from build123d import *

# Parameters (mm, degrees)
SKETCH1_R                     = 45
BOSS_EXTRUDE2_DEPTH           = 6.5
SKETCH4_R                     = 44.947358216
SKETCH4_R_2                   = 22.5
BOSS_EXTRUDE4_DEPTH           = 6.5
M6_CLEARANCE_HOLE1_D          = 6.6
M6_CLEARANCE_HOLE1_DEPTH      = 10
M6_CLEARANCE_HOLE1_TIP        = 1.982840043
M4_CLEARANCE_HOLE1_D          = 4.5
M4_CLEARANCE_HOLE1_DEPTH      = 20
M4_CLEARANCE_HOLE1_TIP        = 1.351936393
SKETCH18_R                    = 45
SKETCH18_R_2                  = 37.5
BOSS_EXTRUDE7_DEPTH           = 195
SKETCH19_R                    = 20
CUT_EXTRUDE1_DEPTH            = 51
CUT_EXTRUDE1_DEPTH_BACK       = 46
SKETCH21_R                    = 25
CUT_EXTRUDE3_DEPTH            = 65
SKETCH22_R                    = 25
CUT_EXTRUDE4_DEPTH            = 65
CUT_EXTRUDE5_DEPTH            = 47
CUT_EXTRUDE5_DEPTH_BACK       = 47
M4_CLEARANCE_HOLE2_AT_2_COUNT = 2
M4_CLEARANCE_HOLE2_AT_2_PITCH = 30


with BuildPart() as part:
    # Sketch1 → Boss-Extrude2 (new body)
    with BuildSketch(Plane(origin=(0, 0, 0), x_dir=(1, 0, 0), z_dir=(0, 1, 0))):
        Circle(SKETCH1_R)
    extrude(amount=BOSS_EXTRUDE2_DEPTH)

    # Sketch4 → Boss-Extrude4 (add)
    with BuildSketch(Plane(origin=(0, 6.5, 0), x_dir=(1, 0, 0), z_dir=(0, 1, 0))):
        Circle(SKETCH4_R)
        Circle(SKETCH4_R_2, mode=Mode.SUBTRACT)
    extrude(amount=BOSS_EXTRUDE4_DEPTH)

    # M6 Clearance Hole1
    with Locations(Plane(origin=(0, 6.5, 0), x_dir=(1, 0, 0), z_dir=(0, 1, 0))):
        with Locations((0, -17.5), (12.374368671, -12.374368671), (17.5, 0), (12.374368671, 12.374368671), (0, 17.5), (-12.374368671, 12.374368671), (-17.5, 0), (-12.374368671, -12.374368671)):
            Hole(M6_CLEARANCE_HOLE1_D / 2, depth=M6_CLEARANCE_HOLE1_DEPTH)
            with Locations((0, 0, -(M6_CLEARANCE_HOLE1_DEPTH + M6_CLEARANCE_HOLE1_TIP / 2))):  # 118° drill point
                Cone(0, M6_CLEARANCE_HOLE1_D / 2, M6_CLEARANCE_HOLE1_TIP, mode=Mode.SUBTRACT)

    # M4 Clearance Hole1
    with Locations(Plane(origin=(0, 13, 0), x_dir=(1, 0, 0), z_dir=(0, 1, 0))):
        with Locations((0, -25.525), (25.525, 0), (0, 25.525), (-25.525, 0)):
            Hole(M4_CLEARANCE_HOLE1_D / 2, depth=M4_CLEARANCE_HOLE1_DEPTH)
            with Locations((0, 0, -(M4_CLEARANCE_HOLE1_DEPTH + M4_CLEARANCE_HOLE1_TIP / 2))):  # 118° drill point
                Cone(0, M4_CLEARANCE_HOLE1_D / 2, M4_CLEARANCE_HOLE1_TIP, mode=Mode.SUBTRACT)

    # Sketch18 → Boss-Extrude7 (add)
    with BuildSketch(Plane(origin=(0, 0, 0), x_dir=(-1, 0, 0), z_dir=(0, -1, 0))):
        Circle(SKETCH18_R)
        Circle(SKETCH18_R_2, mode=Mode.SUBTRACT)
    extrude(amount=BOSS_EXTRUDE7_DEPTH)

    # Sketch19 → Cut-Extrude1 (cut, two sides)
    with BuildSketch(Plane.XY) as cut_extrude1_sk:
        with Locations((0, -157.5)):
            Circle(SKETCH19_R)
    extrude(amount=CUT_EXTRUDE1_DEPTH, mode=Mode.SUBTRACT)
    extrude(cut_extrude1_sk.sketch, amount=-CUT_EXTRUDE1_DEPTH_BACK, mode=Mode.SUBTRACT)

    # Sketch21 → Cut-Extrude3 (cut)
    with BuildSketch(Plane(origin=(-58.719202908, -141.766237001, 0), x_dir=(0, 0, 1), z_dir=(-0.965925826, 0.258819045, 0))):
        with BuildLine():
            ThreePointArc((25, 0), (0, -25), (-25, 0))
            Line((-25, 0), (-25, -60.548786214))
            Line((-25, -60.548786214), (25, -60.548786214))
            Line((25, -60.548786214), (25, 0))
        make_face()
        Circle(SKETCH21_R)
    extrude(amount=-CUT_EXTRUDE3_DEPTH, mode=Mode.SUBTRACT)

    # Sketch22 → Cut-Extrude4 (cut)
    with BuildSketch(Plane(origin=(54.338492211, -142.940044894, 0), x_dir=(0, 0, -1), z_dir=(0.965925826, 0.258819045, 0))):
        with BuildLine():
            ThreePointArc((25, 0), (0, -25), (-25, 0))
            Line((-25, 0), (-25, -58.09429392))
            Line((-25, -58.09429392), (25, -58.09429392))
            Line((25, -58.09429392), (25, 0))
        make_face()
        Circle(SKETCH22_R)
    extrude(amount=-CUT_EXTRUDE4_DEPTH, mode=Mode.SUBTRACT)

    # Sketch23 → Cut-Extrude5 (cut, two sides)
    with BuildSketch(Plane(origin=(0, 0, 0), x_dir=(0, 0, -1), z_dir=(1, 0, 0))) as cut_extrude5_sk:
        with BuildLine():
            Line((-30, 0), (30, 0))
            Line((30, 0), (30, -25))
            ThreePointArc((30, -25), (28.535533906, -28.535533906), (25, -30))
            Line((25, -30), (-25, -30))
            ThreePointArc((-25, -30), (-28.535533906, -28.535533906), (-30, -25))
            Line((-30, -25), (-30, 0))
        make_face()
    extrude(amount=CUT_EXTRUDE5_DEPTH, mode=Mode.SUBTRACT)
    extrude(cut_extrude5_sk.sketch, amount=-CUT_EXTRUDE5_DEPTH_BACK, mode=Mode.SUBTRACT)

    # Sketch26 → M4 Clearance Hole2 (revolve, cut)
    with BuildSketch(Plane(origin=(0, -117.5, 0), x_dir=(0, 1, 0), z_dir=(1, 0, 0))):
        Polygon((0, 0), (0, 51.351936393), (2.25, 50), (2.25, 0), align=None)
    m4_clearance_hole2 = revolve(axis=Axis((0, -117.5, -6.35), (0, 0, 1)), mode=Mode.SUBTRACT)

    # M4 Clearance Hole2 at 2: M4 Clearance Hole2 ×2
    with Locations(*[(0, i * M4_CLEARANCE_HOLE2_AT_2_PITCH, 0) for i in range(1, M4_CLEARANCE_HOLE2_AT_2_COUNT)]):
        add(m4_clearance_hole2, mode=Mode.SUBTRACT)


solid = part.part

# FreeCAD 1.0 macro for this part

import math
import FreeCAD as App
import Part
import Sketcher
from FreeCAD import Vector
Q = App.Units.Quantity

doc = App.newDocument("Part")
params = doc.addObject("Spreadsheet::Sheet", "Params")
for row, (alias, value) in enumerate([
    ("sketch1_diameter", "90 mm"),
    ("pad1_length", "6.5 mm"),
    ("sketch2_diameter", "45 mm"),
    ("pad2_length", "6.5 mm"),
    ("sketch3_diameter", "6.6 mm"),
    ("hole_diameter", "6.6 mm"),
    ("hole_depth", "10 mm"),
    ("sketch4_diameter", "4.5 mm"),
    ("hole2_diameter", "4.5 mm"),
    ("hole2_depth", "20 mm"),
    ("sketch5_diameter", "90 mm"),
    ("sketch5_diameter2", "75 mm"),
    ("pad3_length", "195 mm"),
    ("sketch6_diameter", "40 mm"),
    ("sketch7_radius", "25 mm"),
    ("pocket2_length", "65 mm"),
    ("sketch8_radius", "25 mm"),
    ("pocket3_length", "65 mm"),
    ("sketch9_radius", "5 mm"),
    ("sketch9_width", "25 mm"),
    ("sketch9_height", "60 mm"),
    ("sketch10_height", "50 mm"),
    ("sketch10_width", "2.25 mm"),
    ("groove_angle", "360 deg"),
    ("linearpattern_pitch", "30 mm"),
], start=1):
    params.set(f"A{row}", alias)
    params.set(f"B{row}", "=" + value)
    params.setAlias(f"B{row}", alias)

body = doc.addObject("PartDesign::Body", "Body")

sketch1 = doc.addObject("Sketcher::SketchObject", "Sketch")
body.addObject(sketch1)
sketch1.AttachmentSupport = (doc.XZ_Plane, [""])
sketch1.MapMode = "FlatFace"
sketch1.addGeometry(Part.Circle(Vector(0, 0, 0), Vector(0, 0, 1), 45), False)
sketch1.addConstraint([
    Sketcher.Constraint("Coincident", 0, 3, -1, 1),
    Sketcher.Constraint("Diameter", 0, Q("90 mm")),
])
sketch1.setExpression("Constraints[1]", "Params.sketch1_diameter")
pad1 = doc.addObject("PartDesign::Pad", "Pad")
body.addObject(pad1)
pad1.Profile = sketch1
pad1.setExpression("Length", "Params.pad1_length")
pad1.Reversed = True

sketch2 = doc.addObject("Sketcher::SketchObject", "Sketch001")
body.addObject(sketch2)
sketch2.AttachmentSupport = (doc.XZ_Plane, [""])
sketch2.MapMode = "FlatFace"
sketch2.AttachmentOffset = App.Placement(Vector(0, 0, -6.5), App.Rotation())
sketch2.addGeometry([
    Part.Circle(Vector(0, 0, 0), Vector(0, 0, 1), 44.947358),
    Part.Circle(Vector(0, 0, 0), Vector(0, 0, 1), 22.5),
], False)
sketch2.addConstraint([
    Sketcher.Constraint("Coincident", 0, 3, -1, 1),
    Sketcher.Constraint("Coincident", 1, 3, -1, 1),
    Sketcher.Constraint("Diameter", 1, Q("45 mm")),
    Sketcher.Constraint("Diameter", 0, Q("89.894716 mm")),
])
sketch2.setExpression("Constraints[2]", "Params.sketch2_diameter")
pad2 = doc.addObject("PartDesign::Pad", "Pad001")
body.addObject(pad2)
pad2.Profile = sketch2
pad2.setExpression("Length", "Params.pad2_length")
pad2.Reversed = True

sketch3 = doc.addObject("Sketcher::SketchObject", "Sketch002")
body.addObject(sketch3)
sketch3.AttachmentSupport = (doc.XZ_Plane, [""])
sketch3.MapMode = "FlatFace"
sketch3.AttachmentOffset = App.Placement(Vector(0, 0, -6.5), App.Rotation())
sketch3.addGeometry([
    Part.Circle(Vector(0, 17.5, 0), Vector(0, 0, 1), 3.3),
    Part.Circle(Vector(12.374369, 12.374369, 0), Vector(0, 0, 1), 3.3),
    Part.Circle(Vector(17.5, 0, 0), Vector(0, 0, 1), 3.3),
    Part.Circle(Vector(12.374369, -12.374369, 0), Vector(0, 0, 1), 3.3),
    Part.Circle(Vector(0, -17.5, 0), Vector(0, 0, 1), 3.3),
    Part.Circle(Vector(-12.374369, -12.374369, 0), Vector(0, 0, 1), 3.3),
    Part.Circle(Vector(-17.5, 0, 0), Vector(0, 0, 1), 3.3),
    Part.Circle(Vector(-12.374369, 12.374369, 0), Vector(0, 0, 1), 3.3),
], False)
sketch3.addConstraint([
    Sketcher.Constraint("Equal", 0, 1),
    Sketcher.Constraint("Equal", 1, 2),
    Sketcher.Constraint("Equal", 2, 3),
    Sketcher.Constraint("Equal", 3, 4),
    Sketcher.Constraint("Equal", 4, 5),
    Sketcher.Constraint("Equal", 5, 6),
    Sketcher.Constraint("Equal", 6, 7),
    Sketcher.Constraint("Symmetric", 0, 3, 4, 3, -1, 1),
    Sketcher.Constraint("Symmetric", 1, 3, 5, 3, -1, 1),
    Sketcher.Constraint("Symmetric", 2, 3, 6, 3, -1, 1),
    Sketcher.Constraint("Symmetric", 3, 3, 7, 3, -1, 1),
    Sketcher.Constraint("Symmetric", 3, 3, 5, 3, -2),
    Sketcher.Constraint("PointOnObject", 0, 3, -2),
    Sketcher.Constraint("PointOnObject", 2, 3, -1),
    Sketcher.Constraint("Diameter", 0, Q("6.6 mm")),
    Sketcher.Constraint("DistanceY", 4, 3, 0, 3, Q("35 mm")),
    Sketcher.Constraint("DistanceX", -1, 1, 2, 3, Q("17.5 mm")),
    Sketcher.Constraint("DistanceX", -1, 1, 1, 3, Q("12.374369 mm")),
    Sketcher.Constraint("DistanceY", -1, 1, 1, 3, Q("12.374369 mm")),
])
sketch3.setExpression("Constraints[14]", "Params.sketch3_diameter")
doc.recompute()
hole = doc.addObject("PartDesign::Hole", "Hole")
body.addObject(hole)
hole.Profile = sketch3
hole.ThreadType = "None"
hole.setExpression("Diameter", "Params.hole_diameter")
hole.DepthType = "Dimension"
hole.setExpression("Depth", "Params.hole_depth")
hole.DrillPoint = "Angled"
hole.DrillPointAngle = 118
hole.Reversed = True

sketch4 = doc.addObject("Sketcher::SketchObject", "Sketch003")
body.addObject(sketch4)
sketch4.AttachmentSupport = (doc.XZ_Plane, [""])
sketch4.MapMode = "FlatFace"
sketch4.AttachmentOffset = App.Placement(Vector(0, 0, -13), App.Rotation())
sketch4.addGeometry([
    Part.Circle(Vector(0, 25.525, 0), Vector(0, 0, 1), 2.25),
    Part.Circle(Vector(25.525, 0, 0), Vector(0, 0, 1), 2.25),
    Part.Circle(Vector(0, -25.525, 0), Vector(0, 0, 1), 2.25),
    Part.Circle(Vector(-25.525, 0, 0), Vector(0, 0, 1), 2.25),
], False)
sketch4.addConstraint([
    Sketcher.Constraint("Equal", 0, 1),
    Sketcher.Constraint("Equal", 1, 2),
    Sketcher.Constraint("Equal", 2, 3),
    Sketcher.Constraint("Symmetric", 0, 3, 2, 3, -1, 1),
    Sketcher.Constraint("Symmetric", 1, 3, 3, 3, -1, 1),
    Sketcher.Constraint("PointOnObject", 0, 3, -2),
    Sketcher.Constraint("PointOnObject", 1, 3, -1),
    Sketcher.Constraint("Diameter", 0, Q("4.5 mm")),
    Sketcher.Constraint("DistanceY", 2, 3, 0, 3, Q("51.05 mm")),
    Sketcher.Constraint("DistanceX", 3, 3, 1, 3, Q("51.05 mm")),
])
sketch4.setExpression("Constraints[7]", "Params.sketch4_diameter")
doc.recompute()
hole2 = doc.addObject("PartDesign::Hole", "Hole001")
body.addObject(hole2)
hole2.Profile = sketch4
hole2.ThreadType = "None"
hole2.setExpression("Diameter", "Params.hole2_diameter")
hole2.DepthType = "Dimension"
hole2.setExpression("Depth", "Params.hole2_depth")
hole2.DrillPoint = "Angled"
hole2.DrillPointAngle = 118
hole2.Reversed = True

sketch5 = doc.addObject("Sketcher::SketchObject", "Sketch004")
body.addObject(sketch5)
sketch5.AttachmentSupport = (doc.XZ_Plane, [""])
sketch5.MapMode = "FlatFace"
sketch5.addGeometry([
    Part.Circle(Vector(0, 0, 0), Vector(0, 0, 1), 45),
    Part.Circle(Vector(0, 0, 0), Vector(0, 0, 1), 37.5),
], False)
sketch5.addConstraint([
    Sketcher.Constraint("Coincident", 0, 3, -1, 1),
    Sketcher.Constraint("Coincident", 1, 3, -1, 1),
    Sketcher.Constraint("Diameter", 0, Q("90 mm")),
    Sketcher.Constraint("Diameter", 1, Q("75 mm")),
])
sketch5.setExpression("Constraints[2]", "Params.sketch5_diameter")
sketch5.setExpression("Constraints[3]", "Params.sketch5_diameter2")
pad3 = doc.addObject("PartDesign::Pad", "Pad002")
body.addObject(pad3)
pad3.Profile = sketch5
pad3.setExpression("Length", "Params.pad3_length")

sketch6 = doc.addObject("Sketcher::SketchObject", "Sketch005")
body.addObject(sketch6)
sketch6.AttachmentSupport = (doc.XY_Plane, [""])
sketch6.MapMode = "FlatFace"
sketch6.addGeometry(Part.Circle(Vector(0, -157.5, 0), Vector(0, 0, 1), 20), False)
sketch6.addConstraint([
    Sketcher.Constraint("PointOnObject", 0, 3, -2),
    Sketcher.Constraint("Diameter", 0, Q("40 mm")),
    Sketcher.Constraint("DistanceY", 0, 3, -1, 1, Q("157.5 mm")),
])
sketch6.setExpression("Constraints[1]", "Params.sketch6_diameter")
pocket1 = doc.addObject("PartDesign::Pocket", "Pocket")
body.addObject(pocket1)
pocket1.Profile = sketch6
pocket1.Type = "ThroughAll"
pocket1.Midplane = True

sketch7 = doc.addObject("Sketcher::SketchObject", "Sketch006")
body.addObject(sketch7)
sketch7.Placement = App.Placement(Vector(-58.719203, -141.766237, 0), App.Rotation(Vector(0, 0, 1), Vector(0.258819045, 0.965925826, 0), Vector(-0.965925826, 0.258819045, 0), "ZXY"))
sketch7.addGeometry([
    Part.LineSegment(Vector(-25, 0, 0), Vector(-25, -60.548786, 0)),
    Part.LineSegment(Vector(-25, -60.548786, 0), Vector(25, -60.548786, 0)),
    Part.LineSegment(Vector(25, -60.548786, 0), Vector(25, 0, 0)),
    Part.ArcOfCircle(Part.Circle(Vector(0, 0, 0), Vector(0, 0, 1), 25), math.radians(0), math.radians(180)),
], False)
sketch7.addConstraint([
    Sketcher.Constraint("Coincident", 0, 2, 1, 1),
    Sketcher.Constraint("Coincident", 1, 2, 2, 1),
    Sketcher.Constraint("Tangent", 2, 2, 3, 1),
    Sketcher.Constraint("Tangent", 3, 2, 0, 1),
    Sketcher.Constraint("Vertical", 0),
    Sketcher.Constraint("Horizontal", 1),
    Sketcher.Constraint("Vertical", 2),
    Sketcher.Constraint("Coincident", 3, 3, -1, 1),
    Sketcher.Constraint("Radius", 3, Q("25 mm")),
    Sketcher.Constraint("DistanceY", 0, 2, 0, 1, Q("60.548786 mm")),
])
sketch7.setExpression("Constraints[8]", "Params.sketch7_radius")
pocket2 = doc.addObject("PartDesign::Pocket", "Pocket001")
body.addObject(pocket2)
pocket2.Profile = sketch7
pocket2.setExpression("Length", "Params.pocket2_length")

sketch8 = doc.addObject("Sketcher::SketchObject", "Sketch007")
body.addObject(sketch8)
sketch8.Placement = App.Placement(Vector(54.338492, -142.940045, 0), App.Rotation(Vector(0, 0, -1), Vector(-0.258819045, 0.965925826, 0), Vector(0.965925826, 0.258819045, 0), "ZXY"))
sketch8.addGeometry([
    Part.LineSegment(Vector(-25, 0, 0), Vector(-25, -58.094294, 0)),
    Part.LineSegment(Vector(-25, -58.094294, 0), Vector(25, -58.094294, 0)),
    Part.LineSegment(Vector(25, -58.094294, 0), Vector(25, 0, 0)),
    Part.ArcOfCircle(Part.Circle(Vector(0, 0, 0), Vector(0, 0, 1), 25), math.radians(0), math.radians(180)),
], False)
sketch8.addConstraint([
    Sketcher.Constraint("Coincident", 0, 2, 1, 1),
    Sketcher.Constraint("Coincident", 1, 2, 2, 1),
    Sketcher.Constraint("Tangent", 2, 2, 3, 1),
    Sketcher.Constraint("Tangent", 3, 2, 0, 1),
    Sketcher.Constraint("Vertical", 0),
    Sketcher.Constraint("Horizontal", 1),
    Sketcher.Constraint("Vertical", 2),
    Sketcher.Constraint("Coincident", 3, 3, -1, 1),
    Sketcher.Constraint("Radius", 3, Q("25 mm")),
    Sketcher.Constraint("DistanceY", 0, 2, 0, 1, Q("58.094294 mm")),
])
sketch8.setExpression("Constraints[8]", "Params.sketch8_radius")
pocket3 = doc.addObject("PartDesign::Pocket", "Pocket002")
body.addObject(pocket3)
pocket3.Profile = sketch8
pocket3.setExpression("Length", "Params.pocket3_length")

sketch9 = doc.addObject("Sketcher::SketchObject", "Sketch008")
body.addObject(sketch9)
sketch9.AttachmentSupport = (doc.YZ_Plane, [""])
sketch9.MapMode = "FlatFace"
sketch9.addGeometry([
    Part.LineSegment(Vector(0, -30, 0), Vector(0, 30, 0)),
    Part.LineSegment(Vector(0, 30, 0), Vector(-25, 30, 0)),
    Part.ArcOfCircle(Part.Circle(Vector(-25, 25, 0), Vector(0, 0, 1), 5), math.radians(90), math.radians(180)),
    Part.LineSegment(Vector(-30, 25, 0), Vector(-30, -25, 0)),
    Part.ArcOfCircle(Part.Circle(Vector(-25, -25, 0), Vector(0, 0, 1), 5), math.radians(180), math.radians(270)),
    Part.LineSegment(Vector(-25, -30, 0), Vector(0, -30, 0)),
], False)
sketch9.addConstraint([
    Sketcher.Constraint("Coincident", 0, 2, 1, 1),
    Sketcher.Constraint("Tangent", 1, 2, 2, 1),
    Sketcher.Constraint("Tangent", 2, 2, 3, 1),
    Sketcher.Constraint("Tangent", 3, 2, 4, 1),
    Sketcher.Constraint("Tangent", 4, 2, 5, 1),
    Sketcher.Constraint("Coincident", 5, 2, 0, 1),
    Sketcher.Constraint("Vertical", 0),
    Sketcher.Constraint("Horizontal", 1),
    Sketcher.Constraint("Vertical", 3),
    Sketcher.Constraint("Horizontal", 5),
    Sketcher.Constraint("Equal", 2, 4),
    Sketcher.Constraint("Symmetric", 0, 2, 5, 2, -1, 1),
    Sketcher.Constraint("Radius", 2, Q("5 mm")),
    Sketcher.Constraint("DistanceX", 1, 2, 1, 1, Q("25 mm")),
    Sketcher.Constraint("DistanceY", 0, 1, 0, 2, Q("60 mm")),
])
sketch9.setExpression("Constraints[12]", "Params.sketch9_radius")
sketch9.setExpression("Constraints[13]", "Params.sketch9_width")
sketch9.setExpression("Constraints[14]", "Params.sketch9_height")
pocket4 = doc.addObject("PartDesign::Pocket", "Pocket003")
body.addObject(pocket4)
pocket4.Profile = sketch9
pocket4.Type = "ThroughAll"
pocket4.Midplane = True

sketch10 = doc.addObject("Sketcher::SketchObject", "Sketch009")
body.addObject(sketch10)
sketch10.AttachmentSupport = (doc.YZ_Plane, [""])
sketch10.MapMode = "FlatFace"
sketch10.addGeometry([
    Part.LineSegment(Vector(-117.5, 51.351936, 0), Vector(-117.5, 0, 0)),
    Part.LineSegment(Vector(-117.5, 0, 0), Vector(-115.25, 0, 0)),
    Part.LineSegment(Vector(-115.25, 0, 0), Vector(-115.25, 50, 0)),
    Part.LineSegment(Vector(-115.25, 50, 0), Vector(-117.5, 51.351936, 0)),
], False)
sketch10.addGeometry(Part.LineSegment(Vector(-117.5, 0, 0), Vector(-117.5, 51.351936, 0)), True)
sketch10.addConstraint([
    Sketcher.Constraint("Coincident", 0, 2, 1, 1),
    Sketcher.Constraint("Coincident", 1, 2, 2, 1),
    Sketcher.Constraint("Coincident", 2, 2, 3, 1),
    Sketcher.Constraint("Coincident", 3, 2, 0, 1),
    Sketcher.Constraint("Vertical", 0),
    Sketcher.Constraint("Horizontal", 1),
    Sketcher.Constraint("Vertical", 2),
    Sketcher.Constraint("Vertical", 4),
    Sketcher.Constraint("Coincident", 4, 1, 0, 2),
    Sketcher.Constraint("PointOnObject", 0, 2, -1),
    Sketcher.Constraint("Equal", 0, 4),
    Sketcher.Constraint("DistanceY", 2, 1, 2, 2, Q("50 mm")),
    Sketcher.Constraint("Angle", 3, Q("149 deg")),
    Sketcher.Constraint("DistanceX", 1, 1, 1, 2, Q("2.25 mm")),
    Sketcher.Constraint("DistanceX", 0, 2, -1, 1, Q("117.5 mm")),
])
sketch10.setExpression("Constraints[11]", "Params.sketch10_height")
sketch10.setExpression("Constraints[13]", "Params.sketch10_width")
groove = doc.addObject("PartDesign::Groove", "Groove")
body.addObject(groove)
groove.Profile = sketch10
groove.ReferenceAxis = (sketch10, ["Axis0"])
groove.setExpression("Angle", "Params.groove_angle")
doc.recompute()

linearpattern = doc.addObject("PartDesign::LinearPattern", "LinearPattern")
body.addObject(linearpattern)
linearpattern.Originals = [groove]
linearpattern.Direction = (doc.Y_Axis, [""])
linearpattern.Mode = "offset"
linearpattern.setExpression("Offset", "Params.linearpattern_pitch")
linearpattern.Occurrences = 2
body.Tip = linearpattern

doc.recompute()
